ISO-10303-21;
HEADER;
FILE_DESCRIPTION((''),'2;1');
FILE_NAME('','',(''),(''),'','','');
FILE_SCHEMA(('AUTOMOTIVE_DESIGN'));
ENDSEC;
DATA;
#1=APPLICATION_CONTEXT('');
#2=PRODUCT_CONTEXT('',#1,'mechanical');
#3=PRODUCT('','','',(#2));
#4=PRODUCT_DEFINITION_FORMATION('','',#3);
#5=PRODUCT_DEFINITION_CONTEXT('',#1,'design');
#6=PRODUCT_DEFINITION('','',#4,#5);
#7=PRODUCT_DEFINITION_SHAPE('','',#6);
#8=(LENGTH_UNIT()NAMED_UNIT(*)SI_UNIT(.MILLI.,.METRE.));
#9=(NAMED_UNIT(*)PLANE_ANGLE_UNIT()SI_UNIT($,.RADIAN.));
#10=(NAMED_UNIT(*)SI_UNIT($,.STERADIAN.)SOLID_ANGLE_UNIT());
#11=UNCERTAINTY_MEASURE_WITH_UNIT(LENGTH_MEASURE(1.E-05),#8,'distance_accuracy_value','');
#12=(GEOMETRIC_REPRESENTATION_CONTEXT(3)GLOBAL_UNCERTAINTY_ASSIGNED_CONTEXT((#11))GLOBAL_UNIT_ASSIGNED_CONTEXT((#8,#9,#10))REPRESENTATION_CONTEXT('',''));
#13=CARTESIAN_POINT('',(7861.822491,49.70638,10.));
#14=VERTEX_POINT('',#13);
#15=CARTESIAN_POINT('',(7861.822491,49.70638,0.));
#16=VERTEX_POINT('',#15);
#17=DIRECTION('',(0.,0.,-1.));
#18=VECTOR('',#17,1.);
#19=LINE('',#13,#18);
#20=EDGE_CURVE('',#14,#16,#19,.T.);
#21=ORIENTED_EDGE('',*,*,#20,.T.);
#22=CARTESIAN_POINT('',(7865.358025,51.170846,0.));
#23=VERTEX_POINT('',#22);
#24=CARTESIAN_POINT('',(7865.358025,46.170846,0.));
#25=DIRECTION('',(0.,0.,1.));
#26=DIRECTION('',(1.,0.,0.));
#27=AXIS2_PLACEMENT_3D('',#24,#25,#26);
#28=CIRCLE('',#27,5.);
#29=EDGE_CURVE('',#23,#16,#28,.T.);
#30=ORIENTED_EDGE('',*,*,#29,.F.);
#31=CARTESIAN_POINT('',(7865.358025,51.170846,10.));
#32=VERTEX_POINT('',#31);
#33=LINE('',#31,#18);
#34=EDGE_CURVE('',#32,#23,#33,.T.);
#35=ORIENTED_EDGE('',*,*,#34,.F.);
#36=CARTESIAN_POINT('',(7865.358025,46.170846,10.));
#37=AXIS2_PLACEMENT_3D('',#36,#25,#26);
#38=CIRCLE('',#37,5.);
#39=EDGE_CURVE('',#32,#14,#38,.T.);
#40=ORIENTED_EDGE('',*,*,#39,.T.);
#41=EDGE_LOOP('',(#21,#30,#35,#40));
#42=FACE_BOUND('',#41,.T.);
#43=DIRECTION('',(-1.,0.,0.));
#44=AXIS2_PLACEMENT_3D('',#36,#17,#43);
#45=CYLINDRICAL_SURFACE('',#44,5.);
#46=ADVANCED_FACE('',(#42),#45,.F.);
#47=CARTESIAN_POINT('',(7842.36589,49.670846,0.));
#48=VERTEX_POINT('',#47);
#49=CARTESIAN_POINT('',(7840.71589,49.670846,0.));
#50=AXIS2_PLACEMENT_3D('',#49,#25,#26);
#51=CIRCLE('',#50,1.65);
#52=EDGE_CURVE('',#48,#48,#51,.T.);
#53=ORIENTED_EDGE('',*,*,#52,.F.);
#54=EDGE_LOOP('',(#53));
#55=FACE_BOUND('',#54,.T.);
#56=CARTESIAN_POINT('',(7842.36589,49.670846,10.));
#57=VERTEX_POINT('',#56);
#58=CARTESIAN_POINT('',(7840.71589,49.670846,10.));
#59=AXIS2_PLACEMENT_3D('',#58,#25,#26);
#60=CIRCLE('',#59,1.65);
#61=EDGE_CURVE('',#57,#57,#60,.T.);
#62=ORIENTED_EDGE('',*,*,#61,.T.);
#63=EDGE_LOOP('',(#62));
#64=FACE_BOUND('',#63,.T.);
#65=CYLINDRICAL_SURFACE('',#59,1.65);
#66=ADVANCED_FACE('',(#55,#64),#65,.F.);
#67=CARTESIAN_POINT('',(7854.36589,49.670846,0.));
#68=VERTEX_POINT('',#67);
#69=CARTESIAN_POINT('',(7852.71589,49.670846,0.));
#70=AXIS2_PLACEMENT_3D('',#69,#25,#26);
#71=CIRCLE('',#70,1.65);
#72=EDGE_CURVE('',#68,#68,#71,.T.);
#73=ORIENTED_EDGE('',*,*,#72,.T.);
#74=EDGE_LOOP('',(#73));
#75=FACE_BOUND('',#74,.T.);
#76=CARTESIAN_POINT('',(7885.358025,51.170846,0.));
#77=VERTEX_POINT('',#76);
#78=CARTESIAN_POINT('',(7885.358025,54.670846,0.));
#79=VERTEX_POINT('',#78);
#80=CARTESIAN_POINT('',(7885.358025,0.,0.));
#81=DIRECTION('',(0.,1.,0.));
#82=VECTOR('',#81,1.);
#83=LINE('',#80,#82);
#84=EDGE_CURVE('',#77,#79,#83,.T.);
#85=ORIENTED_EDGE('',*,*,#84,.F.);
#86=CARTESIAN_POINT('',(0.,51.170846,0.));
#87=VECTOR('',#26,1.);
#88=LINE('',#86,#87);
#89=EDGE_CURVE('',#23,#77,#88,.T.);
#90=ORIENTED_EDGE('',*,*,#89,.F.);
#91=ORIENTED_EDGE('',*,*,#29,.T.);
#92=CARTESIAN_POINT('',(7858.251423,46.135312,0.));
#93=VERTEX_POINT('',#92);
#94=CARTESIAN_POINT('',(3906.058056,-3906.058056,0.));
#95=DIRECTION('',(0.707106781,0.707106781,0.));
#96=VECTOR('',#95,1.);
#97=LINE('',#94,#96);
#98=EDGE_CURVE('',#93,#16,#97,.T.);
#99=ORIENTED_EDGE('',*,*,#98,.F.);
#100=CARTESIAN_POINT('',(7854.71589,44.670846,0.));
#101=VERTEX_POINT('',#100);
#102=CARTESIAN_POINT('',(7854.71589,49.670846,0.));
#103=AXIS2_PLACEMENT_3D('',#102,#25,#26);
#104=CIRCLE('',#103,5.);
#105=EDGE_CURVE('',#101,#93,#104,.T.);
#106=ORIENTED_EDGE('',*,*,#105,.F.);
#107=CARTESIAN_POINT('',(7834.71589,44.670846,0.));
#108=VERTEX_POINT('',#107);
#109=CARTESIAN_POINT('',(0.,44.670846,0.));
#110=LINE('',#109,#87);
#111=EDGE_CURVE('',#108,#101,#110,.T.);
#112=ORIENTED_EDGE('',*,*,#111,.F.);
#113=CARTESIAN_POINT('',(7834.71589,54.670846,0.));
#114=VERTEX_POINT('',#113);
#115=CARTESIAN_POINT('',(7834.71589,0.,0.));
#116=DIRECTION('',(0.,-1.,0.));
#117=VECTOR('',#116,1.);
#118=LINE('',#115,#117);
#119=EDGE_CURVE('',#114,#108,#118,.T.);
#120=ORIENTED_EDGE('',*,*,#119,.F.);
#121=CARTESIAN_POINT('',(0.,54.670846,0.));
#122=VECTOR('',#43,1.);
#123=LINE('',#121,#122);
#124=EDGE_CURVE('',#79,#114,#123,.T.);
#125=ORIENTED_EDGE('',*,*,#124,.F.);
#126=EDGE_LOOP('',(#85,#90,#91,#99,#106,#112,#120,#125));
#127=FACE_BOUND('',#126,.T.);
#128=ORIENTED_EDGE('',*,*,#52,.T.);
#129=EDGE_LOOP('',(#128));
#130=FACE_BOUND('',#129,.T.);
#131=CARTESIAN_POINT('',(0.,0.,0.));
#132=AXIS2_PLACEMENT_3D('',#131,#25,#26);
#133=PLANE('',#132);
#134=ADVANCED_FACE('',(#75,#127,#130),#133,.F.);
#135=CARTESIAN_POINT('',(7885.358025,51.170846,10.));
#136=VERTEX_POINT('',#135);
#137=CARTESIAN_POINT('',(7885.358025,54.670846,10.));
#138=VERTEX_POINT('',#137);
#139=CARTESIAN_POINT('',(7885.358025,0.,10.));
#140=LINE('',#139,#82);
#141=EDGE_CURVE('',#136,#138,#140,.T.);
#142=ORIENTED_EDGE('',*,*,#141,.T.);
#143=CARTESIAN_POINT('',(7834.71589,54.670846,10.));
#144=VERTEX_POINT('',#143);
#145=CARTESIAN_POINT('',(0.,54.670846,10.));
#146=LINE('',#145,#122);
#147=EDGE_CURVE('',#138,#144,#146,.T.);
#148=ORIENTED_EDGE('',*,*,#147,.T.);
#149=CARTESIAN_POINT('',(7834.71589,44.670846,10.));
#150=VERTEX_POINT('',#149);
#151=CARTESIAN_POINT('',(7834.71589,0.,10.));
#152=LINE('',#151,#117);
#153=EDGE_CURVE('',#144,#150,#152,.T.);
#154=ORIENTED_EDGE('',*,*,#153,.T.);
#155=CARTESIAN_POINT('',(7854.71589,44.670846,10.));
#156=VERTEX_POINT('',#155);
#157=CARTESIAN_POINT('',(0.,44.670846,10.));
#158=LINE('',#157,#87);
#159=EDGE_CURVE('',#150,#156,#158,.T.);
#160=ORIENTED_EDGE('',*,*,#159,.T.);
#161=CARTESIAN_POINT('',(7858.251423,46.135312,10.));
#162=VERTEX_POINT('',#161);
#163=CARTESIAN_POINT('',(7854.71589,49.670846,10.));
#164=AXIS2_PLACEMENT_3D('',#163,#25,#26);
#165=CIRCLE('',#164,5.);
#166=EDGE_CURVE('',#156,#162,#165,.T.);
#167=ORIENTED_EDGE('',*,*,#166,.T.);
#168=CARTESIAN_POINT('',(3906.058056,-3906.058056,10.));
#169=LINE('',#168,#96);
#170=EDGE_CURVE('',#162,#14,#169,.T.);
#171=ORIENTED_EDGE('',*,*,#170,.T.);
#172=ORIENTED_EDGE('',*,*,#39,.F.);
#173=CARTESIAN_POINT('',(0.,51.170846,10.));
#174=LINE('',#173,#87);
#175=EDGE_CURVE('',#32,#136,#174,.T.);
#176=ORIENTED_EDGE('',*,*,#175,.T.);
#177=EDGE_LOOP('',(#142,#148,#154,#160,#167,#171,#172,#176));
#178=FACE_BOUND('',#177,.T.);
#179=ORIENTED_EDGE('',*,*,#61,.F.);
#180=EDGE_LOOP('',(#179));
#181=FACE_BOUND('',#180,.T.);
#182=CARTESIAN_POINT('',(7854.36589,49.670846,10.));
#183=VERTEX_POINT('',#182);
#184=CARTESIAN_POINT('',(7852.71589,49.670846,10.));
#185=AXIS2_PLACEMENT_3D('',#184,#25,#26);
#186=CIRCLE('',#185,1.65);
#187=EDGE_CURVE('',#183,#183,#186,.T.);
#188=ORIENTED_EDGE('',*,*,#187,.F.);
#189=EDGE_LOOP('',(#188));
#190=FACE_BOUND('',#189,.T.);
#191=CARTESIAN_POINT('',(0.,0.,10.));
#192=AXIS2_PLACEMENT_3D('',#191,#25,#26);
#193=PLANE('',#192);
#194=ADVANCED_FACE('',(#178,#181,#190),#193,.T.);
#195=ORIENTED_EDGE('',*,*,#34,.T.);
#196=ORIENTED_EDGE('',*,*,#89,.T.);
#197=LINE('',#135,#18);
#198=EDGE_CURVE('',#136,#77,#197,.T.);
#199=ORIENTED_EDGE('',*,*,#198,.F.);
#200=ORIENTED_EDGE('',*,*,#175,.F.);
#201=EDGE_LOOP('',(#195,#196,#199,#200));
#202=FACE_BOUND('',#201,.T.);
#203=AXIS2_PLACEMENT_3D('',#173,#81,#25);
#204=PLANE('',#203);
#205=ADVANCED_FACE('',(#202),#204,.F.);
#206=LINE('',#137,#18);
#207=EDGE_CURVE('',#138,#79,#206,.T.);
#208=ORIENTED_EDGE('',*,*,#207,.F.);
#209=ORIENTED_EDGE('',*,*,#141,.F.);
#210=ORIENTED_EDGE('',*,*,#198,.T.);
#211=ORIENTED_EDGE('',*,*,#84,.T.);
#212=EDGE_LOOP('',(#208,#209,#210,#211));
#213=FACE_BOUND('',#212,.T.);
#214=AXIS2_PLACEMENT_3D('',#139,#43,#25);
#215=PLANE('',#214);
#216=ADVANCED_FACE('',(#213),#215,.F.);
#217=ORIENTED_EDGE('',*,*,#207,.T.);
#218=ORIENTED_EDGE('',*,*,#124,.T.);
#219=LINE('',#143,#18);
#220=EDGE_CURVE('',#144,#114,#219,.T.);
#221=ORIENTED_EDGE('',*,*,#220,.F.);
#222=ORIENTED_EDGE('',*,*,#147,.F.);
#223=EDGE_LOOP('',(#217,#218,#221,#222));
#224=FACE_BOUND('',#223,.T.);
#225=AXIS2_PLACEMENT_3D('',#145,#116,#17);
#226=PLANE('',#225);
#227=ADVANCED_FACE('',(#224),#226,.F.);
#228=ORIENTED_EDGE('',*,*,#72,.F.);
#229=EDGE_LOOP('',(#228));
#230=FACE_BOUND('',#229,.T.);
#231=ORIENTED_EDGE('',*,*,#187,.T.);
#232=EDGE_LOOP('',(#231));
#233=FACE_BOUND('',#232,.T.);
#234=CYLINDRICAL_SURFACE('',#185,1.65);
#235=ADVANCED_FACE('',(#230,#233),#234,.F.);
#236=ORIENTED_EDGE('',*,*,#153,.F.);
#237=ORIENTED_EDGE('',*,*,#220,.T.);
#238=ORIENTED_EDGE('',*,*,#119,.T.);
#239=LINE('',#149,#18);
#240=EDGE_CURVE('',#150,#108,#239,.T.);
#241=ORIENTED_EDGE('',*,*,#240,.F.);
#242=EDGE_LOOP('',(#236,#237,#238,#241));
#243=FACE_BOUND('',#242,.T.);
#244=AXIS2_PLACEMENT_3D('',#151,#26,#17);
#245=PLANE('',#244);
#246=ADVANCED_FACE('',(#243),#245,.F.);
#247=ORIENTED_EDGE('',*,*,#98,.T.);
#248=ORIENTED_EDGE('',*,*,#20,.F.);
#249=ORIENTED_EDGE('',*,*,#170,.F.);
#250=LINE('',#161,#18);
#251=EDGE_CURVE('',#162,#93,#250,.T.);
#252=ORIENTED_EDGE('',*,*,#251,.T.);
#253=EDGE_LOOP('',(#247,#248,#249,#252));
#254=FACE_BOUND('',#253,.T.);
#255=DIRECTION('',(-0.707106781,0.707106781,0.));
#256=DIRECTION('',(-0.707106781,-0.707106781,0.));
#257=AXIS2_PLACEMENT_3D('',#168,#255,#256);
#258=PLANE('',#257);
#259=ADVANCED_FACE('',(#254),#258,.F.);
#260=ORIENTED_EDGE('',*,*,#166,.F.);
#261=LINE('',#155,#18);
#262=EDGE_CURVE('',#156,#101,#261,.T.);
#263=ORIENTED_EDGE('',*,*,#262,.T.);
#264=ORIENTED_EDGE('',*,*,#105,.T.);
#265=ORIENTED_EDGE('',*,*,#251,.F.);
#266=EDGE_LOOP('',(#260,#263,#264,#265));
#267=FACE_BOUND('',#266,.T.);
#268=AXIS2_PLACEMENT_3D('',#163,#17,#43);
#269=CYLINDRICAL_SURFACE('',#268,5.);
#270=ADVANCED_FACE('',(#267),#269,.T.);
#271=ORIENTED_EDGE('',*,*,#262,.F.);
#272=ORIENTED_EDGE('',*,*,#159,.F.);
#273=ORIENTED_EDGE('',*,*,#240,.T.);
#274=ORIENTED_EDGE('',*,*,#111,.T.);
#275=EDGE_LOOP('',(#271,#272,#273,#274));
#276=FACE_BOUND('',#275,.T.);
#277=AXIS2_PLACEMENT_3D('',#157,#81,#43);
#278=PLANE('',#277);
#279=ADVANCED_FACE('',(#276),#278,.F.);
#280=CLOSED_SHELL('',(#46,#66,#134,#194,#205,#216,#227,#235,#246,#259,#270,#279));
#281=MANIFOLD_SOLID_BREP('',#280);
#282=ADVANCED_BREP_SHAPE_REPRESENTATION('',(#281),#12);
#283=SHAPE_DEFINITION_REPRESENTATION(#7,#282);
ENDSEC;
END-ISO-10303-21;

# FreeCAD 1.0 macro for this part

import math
import FreeCAD as App
import Part
import Sketcher

V = App.Vector
Q = App.Units.Quantity

doc = App.newDocument("Part")
params = doc.addObject("Spreadsheet::Sheet", "Params")
for row, (alias, value) in enumerate([
    ("sketch1_radius", "5 mm"),
    ("sketch1_width", "20 mm"),
    ("sketch1_height", "10 mm"),
    ("sketch1_height2", "3.5 mm"),
    ("pad1_length", "10 mm"),
    ("sketch2_diameter", "3.3 mm"),
    ("hole_diameter", "3.3 mm"),
], start=1):
    params.set(f"A{row}", alias)
    params.set(f"B{row}", "=" + value)
    params.setAlias(f"B{row}", alias)

body = doc.addObject("PartDesign::Body", "Body")

# Sketch on XY plane
sketch1 = body.newObject("Sketcher::SketchObject", "Sketch")
sketch1.AttachmentSupport = (doc.getObject("XY_Plane"), [""])
sketch1.MapMode = "FlatFace"
sketch1.addGeometry(Part.LineSegment(V(7834.71589, 44.670846, 0), V(7854.71589, 44.670846, 0)), False)
sketch1.addGeometry(Part.ArcOfCircle(Part.Circle(V(7854.71589, 49.670846, 0), V(0, 0, 1), 5), math.radians(-90), math.radians(-45)), False)
sketch1.addGeometry(Part.LineSegment(V(7858.251423, 46.135312, 0), V(7861.822491, 49.70638, 0)), False)
sketch1.addGeometry(Part.ArcOfCircle(Part.Circle(V(7865.358025, 46.170846, 0), V(0, 0, 1), 5), math.radians(90), math.radians(135)), False)
sketch1.addGeometry(Part.LineSegment(V(7865.358025, 51.170846, 0), V(7885.358025, 51.170846, 0)), False)
sketch1.addGeometry(Part.LineSegment(V(7885.358025, 51.170846, 0), V(7885.358025, 54.670846, 0)), False)
sketch1.addGeometry(Part.LineSegment(V(7885.358025, 54.670846, 0), V(7834.71589, 54.670846, 0)), False)
sketch1.addGeometry(Part.LineSegment(V(7834.71589, 54.670846, 0), V(7834.71589, 44.670846, 0)), False)
sketch1.addConstraint(Sketcher.Constraint("Tangent", 0, 2, 1, 1))
sketch1.addConstraint(Sketcher.Constraint("Tangent", 1, 2, 2, 1))
sketch1.addConstraint(Sketcher.Constraint("Tangent", 2, 2, 3, 2))
sketch1.addConstraint(Sketcher.Constraint("Tangent", 3, 1, 4, 1))
sketch1.addConstraint(Sketcher.Constraint("Coincident", 4, 2, 5, 1))
sketch1.addConstraint(Sketcher.Constraint("Coincident", 5, 2, 6, 1))
sketch1.addConstraint(Sketcher.Constraint("Coincident", 6, 2, 7, 1))
sketch1.addConstraint(Sketcher.Constraint("Coincident", 7, 2, 0, 1))
sketch1.addConstraint(Sketcher.Constraint("Horizontal", 0))
sketch1.addConstraint(Sketcher.Constraint("Horizontal", 4))
sketch1.addConstraint(Sketcher.Constraint("Vertical", 5))
sketch1.addConstraint(Sketcher.Constraint("Horizontal", 6))
sketch1.addConstraint(Sketcher.Constraint("Vertical", 7))
sketch1.addConstraint(Sketcher.Constraint("Equal", 1, 3))
sketch1.addConstraint(Sketcher.Constraint("Equal", 0, 4))
sketch1.addConstraint(Sketcher.Constraint("Radius", 1, 5.0))
sketch1.addConstraint(Sketcher.Constraint("DistanceX", 0, 1, 0, 2, 20.0))
sketch1.addConstraint(Sketcher.Constraint("DistanceY", 7, 2, 7, 1, 10.0))
sketch1.addConstraint(Sketcher.Constraint("Angle", 2, Q("45 deg")))
sketch1.addConstraint(Sketcher.Constraint("DistanceY", 5, 1, 5, 2, 3.5))
sketch1.addConstraint(Sketcher.Constraint("DistanceX", -1, 1, 1, 3, 7854.71589))
sketch1.addConstraint(Sketcher.Constraint("DistanceY", -1, 1, 1, 2, 46.135312))
sketch1.setExpression("Constraints[15]", "Params.sketch1_radius")
sketch1.setExpression("Constraints[16]", "Params.sketch1_width")
sketch1.setExpression("Constraints[17]", "Params.sketch1_height")
sketch1.setExpression("Constraints[19]", "Params.sketch1_height2")
pad1 = body.newObject("PartDesign::Pad", "Pad")
pad1.Profile = sketch1
pad1.setExpression("Length", "Params.pad1_length")

# Sketch on XY plane
sketch2 = body.newObject("Sketcher::SketchObject", "Sketch001")
sketch2.AttachmentSupport = (doc.getObject("XY_Plane"), [""])
sketch2.MapMode = "FlatFace"
sketch2.AttachmentOffset = App.Placement(V(0, 0, 10), App.Rotation())
sketch2.addGeometry(Part.Circle(V(7840.71589, 49.670846, 0), V(0, 0, 1), 1.65), False)
sketch2.addGeometry(Part.Circle(V(7852.71589, 49.670846, 0), V(0, 0, 1), 1.65), False)
sketch2.addConstraint(Sketcher.Constraint("Equal", 0, 1))
sketch2.addConstraint(Sketcher.Constraint("Horizontal", 0, 3, 1, 3))
sketch2.addConstraint(Sketcher.Constraint("Diameter", 0, 3.3))
sketch2.addConstraint(Sketcher.Constraint("DistanceX", 0, 3, 1, 3, 12.0))
sketch2.addConstraint(Sketcher.Constraint("DistanceX", -1, 1, 0, 3, 7840.71589))
sketch2.addConstraint(Sketcher.Constraint("DistanceY", -1, 1, 0, 3, 49.670846))
sketch2.setExpression("Constraints[2]", "Params.sketch2_diameter")
doc.recompute()
hole = body.newObject("PartDesign::Hole", "Hole")
hole.Profile = sketch2
hole.ThreadType = "None"
hole.setExpression("Diameter", "Params.hole_diameter")
hole.DepthType = "ThroughAll"

doc.recompute()
